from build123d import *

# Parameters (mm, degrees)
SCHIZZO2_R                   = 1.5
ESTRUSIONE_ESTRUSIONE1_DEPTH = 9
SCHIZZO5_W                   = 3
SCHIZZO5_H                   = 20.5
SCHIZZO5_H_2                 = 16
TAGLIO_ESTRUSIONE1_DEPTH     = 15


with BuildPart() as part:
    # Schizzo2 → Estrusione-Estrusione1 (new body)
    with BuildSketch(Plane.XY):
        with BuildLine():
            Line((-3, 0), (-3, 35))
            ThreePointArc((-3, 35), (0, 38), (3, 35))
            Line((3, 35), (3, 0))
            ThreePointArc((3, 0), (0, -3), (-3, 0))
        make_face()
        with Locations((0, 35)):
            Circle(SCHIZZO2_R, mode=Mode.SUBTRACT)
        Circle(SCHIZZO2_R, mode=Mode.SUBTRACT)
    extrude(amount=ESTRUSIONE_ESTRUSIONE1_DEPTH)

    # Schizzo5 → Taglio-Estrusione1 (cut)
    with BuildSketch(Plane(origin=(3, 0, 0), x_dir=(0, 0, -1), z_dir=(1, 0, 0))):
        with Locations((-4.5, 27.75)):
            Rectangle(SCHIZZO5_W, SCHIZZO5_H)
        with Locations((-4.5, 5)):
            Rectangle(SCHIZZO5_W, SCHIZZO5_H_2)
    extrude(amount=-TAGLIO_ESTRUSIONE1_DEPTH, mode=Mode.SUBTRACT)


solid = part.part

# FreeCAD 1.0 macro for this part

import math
import FreeCAD as App
import Part
import Sketcher
from FreeCAD import Vector


def add_polygon(sketch, points):
    """Adds a closed chain of lines whose ends are joined by coincident constraints."""
    first, n = sketch.GeometryCount, len(points)
    for a, b in zip(points, points[1:] + points[:1]):
        sketch.addGeometry(Part.LineSegment(App.Vector(*a, 0), App.Vector(*b, 0)), False)
    for i in range(n):
        sketch.addConstraint(Sketcher.Constraint("Coincident", first + i, 2, first + (i + 1) % n, 1))

doc = App.newDocument("Part")
params = doc.addObject("Spreadsheet::Sheet", "Params")
for row, (alias, value) in enumerate([
    ("sketch1_diameter", "3 mm"),
    ("sketch1_radius", "3 mm"),
    ("sketch1_height", "35 mm"),
    ("pad1_length", "9 mm"),
    ("sketch2_width", "16 mm"),
    ("sketch2_height", "3 mm"),
    ("sketch2_width2", "20.5 mm"),
    ("pocket1_length", "15 mm"),
], start=1):
    params.set(f"A{row}", alias)
    params.set(f"B{row}", "=" + value)
    params.setAlias(f"B{row}", alias)

body = doc.addObject("PartDesign::Body", "Body")

sketch1 = body.newObject("Sketcher::SketchObject", "Sketch")
sketch1.AttachmentSupport = (doc.getObject("XY_Plane"), [""])
sketch1.MapMode = "FlatFace"
sketch1.addGeometry([
    Part.LineSegment(Vector(-3, 35, 0), Vector(-3, 0, 0)),
    Part.ArcOfCircle(Part.Circle(Vector(0, 0, 0), Vector(0, 0, 1), 3), math.radians(180), math.radians(360)),
    Part.LineSegment(Vector(3, 0, 0), Vector(3, 35, 0)),
    Part.ArcOfCircle(Part.Circle(Vector(0, 35, 0), Vector(0, 0, 1), 3), math.radians(0), math.radians(180)),
    Part.Circle(Vector(0, 0, 0), Vector(0, 0, 1), 1.5),
    Part.Circle(Vector(0, 35, 0), Vector(0, 0, 1), 1.5),
], False)
sketch1.addConstraint([
    Sketcher.Constraint("Tangent", 0, 2, 1, 1),
    Sketcher.Constraint("Tangent", 1, 2, 2, 1),
    Sketcher.Constraint("Tangent", 2, 2, 3, 1),
    Sketcher.Constraint("Tangent", 3, 2, 0, 1),
    Sketcher.Constraint("Vertical", 0),
    Sketcher.Constraint("Vertical", 2),
    Sketcher.Constraint("Coincident", 1, 3, -1, 1),
    Sketcher.Constraint("Coincident", 4, 3, -1, 1),
    Sketcher.Constraint("Coincident", 5, 3, 3, 3),
    Sketcher.Constraint("Equal", 4, 5),
    Sketcher.Constraint("Diameter", 4, 3.0),
    Sketcher.Constraint("Radius", 1, 3.0),
    Sketcher.Constraint("DistanceY", 0, 2, 0, 1, 35.0),
])
sketch1.setExpression("Constraints[10]", "Params.sketch1_diameter")
sketch1.setExpression("Constraints[11]", "Params.sketch1_radius")
sketch1.setExpression("Constraints[12]", "Params.sketch1_height")
pad1 = body.newObject("PartDesign::Pad", "Pad")
pad1.Profile = sketch1
pad1.setExpression("Length", "Params.pad1_length")

sketch2 = body.newObject("Sketcher::SketchObject", "Sketch001")
sketch2.AttachmentSupport = (doc.getObject("YZ_Plane"), [""])
sketch2.MapMode = "FlatFace"
sketch2.AttachmentOffset = App.Placement(Vector(0, 0, 3), App.Rotation())
add_polygon(sketch2, [(38, 6), (17.5, 6), (17.5, 3), (38, 3)])
add_polygon(sketch2, [(13, 6), (-3, 6), (-3, 3), (13, 3)])
sketch2.addConstraint([
    Sketcher.Constraint("Horizontal", 0),
    Sketcher.Constraint("Vertical", 1),
    Sketcher.Constraint("Horizontal", 2),
    Sketcher.Constraint("Vertical", 3),
    Sketcher.Constraint("Horizontal", 4),
    Sketcher.Constraint("Vertical", 5),
    Sketcher.Constraint("Horizontal", 6),
    Sketcher.Constraint("Vertical", 7),
    Sketcher.Constraint("Horizontal", 3, 2, 4, 2),
    Sketcher.Constraint("Horizontal", 2, 2, 5, 2),
    Sketcher.Constraint("DistanceX", 4, 2, 4, 1, 16.0),
    Sketcher.Constraint("DistanceY", 1, 2, 1, 1, 3.0),
    Sketcher.Constraint("DistanceX", 0, 2, 0, 1, 20.5),
    Sketcher.Constraint("DistanceY", -1, 1, 0, 2, 6.0),
    Sketcher.Constraint("DistanceX", -1, 1, 2, 2, 38.0),
    Sketcher.Constraint("DistanceX", 4, 2, -1, 1, 3.0),
])
sketch2.setExpression("Constraints[18]", "Params.sketch2_width")
sketch2.setExpression("Constraints[19]", "Params.sketch2_height")
sketch2.setExpression("Constraints[20]", "Params.sketch2_width2")
pocket1 = body.newObject("PartDesign::Pocket", "Pocket")
pocket1.Profile = sketch2
pocket1.setExpression("Length", "Params.pocket1_length")

doc.recompute()
